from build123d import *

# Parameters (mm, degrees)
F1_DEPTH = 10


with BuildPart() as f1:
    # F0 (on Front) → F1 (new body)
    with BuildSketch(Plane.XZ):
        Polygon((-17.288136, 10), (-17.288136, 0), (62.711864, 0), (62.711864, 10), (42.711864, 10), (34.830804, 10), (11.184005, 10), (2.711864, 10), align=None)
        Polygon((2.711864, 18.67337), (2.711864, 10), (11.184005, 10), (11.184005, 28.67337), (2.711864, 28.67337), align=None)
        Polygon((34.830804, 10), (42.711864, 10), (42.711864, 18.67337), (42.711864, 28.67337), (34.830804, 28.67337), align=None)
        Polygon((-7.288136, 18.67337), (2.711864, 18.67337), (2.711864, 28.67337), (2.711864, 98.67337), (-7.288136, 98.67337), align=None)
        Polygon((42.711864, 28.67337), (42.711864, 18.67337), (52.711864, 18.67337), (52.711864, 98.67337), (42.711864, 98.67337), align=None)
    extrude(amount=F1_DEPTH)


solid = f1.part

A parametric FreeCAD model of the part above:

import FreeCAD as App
import Part
import Sketcher
from FreeCAD import Vector
Q = App.Units.Quantity


def add_polygon(sketch, points):
    """Adds a closed chain of lines whose ends are joined by coincident constraints."""
    first, n = sketch.GeometryCount, len(points)
    for a, b in zip(points, points[1:] + points[:1]):
        sketch.addGeometry(Part.LineSegment(App.Vector(*a, 0), App.Vector(*b, 0)), False)
    for i in range(n):
        sketch.addConstraint(Sketcher.Constraint("Coincident", first + i, 2, first + (i + 1) % n, 1))

doc = App.newDocument("Part")
body = doc.addObject("PartDesign::Body", "Body")

# Sketch on XZ plane
sketch1 = body.newObject("Sketcher::SketchObject", "Sketch")
sketch1.AttachmentSupport = (doc.getObject("XZ_Plane"), [""])
sketch1.MapMode = "FlatFace"
add_polygon(sketch1, [(-17, 10), (-17, 0), (63, 0), (63, 10), (43, 10), (43, 19), (53, 19), (53, 99), (43, 99), (43, 29), (35, 29), (35, 10), (11, 10), (11, 29), (3, 29), (3, 99), (-7, 99), (-7, 19), (3, 19), (3, 10)])  # lines 0-19
sketch1.addConstraint([
    Sketcher.Constraint("Vertical", 0),
    Sketcher.Constraint("Horizontal", 1),
    Sketcher.Constraint("Vertical", 2),
    Sketcher.Constraint("Horizontal", 3),
    Sketcher.Constraint("Vertical", 4),
    Sketcher.Constraint("Horizontal", 5),
    Sketcher.Constraint("Vertical", 6),
    Sketcher.Constraint("Horizontal", 7),
    Sketcher.Constraint("Vertical", 8),
    Sketcher.Constraint("Horizontal", 9),
    Sketcher.Constraint("Vertical", 10),
    Sketcher.Constraint("Horizontal", 11),
    Sketcher.Constraint("Vertical", 12),
    Sketcher.Constraint("Horizontal", 13),
    Sketcher.Constraint("Vertical", 14),
    Sketcher.Constraint("Horizontal", 15),
    Sketcher.Constraint("Vertical", 16),
    Sketcher.Constraint("Horizontal", 17),
    Sketcher.Constraint("Vertical", 18),
    Sketcher.Constraint("Horizontal", 19),
    Sketcher.Constraint("PointOnObject", 0, 2, -1),
    Sketcher.Constraint("Horizontal", 3, 2, 10, 2),
    Sketcher.Constraint("Horizontal", 9, 2, 12, 2),
    Sketcher.Constraint("Horizontal", 7, 2, 14, 2),
    Sketcher.Constraint("Horizontal", 5, 2, 16, 2),
    Sketcher.Constraint("Horizontal", 11, 2, 18, 2),
    Sketcher.Constraint("Vertical", 4, 2, 7, 2),
    Sketcher.Constraint("Vertical", 14, 2, 17, 2),
    Sketcher.Constraint("Equal", 7, 15),
    Sketcher.Constraint("Equal", 3, 19),
    Sketcher.Constraint("Equal", 17, 0),
    Sketcher.Constraint("Equal", 1, 6),
    Sketcher.Constraint("DistanceX", 1, 1, 1, 2, Q("80 mm")),
    Sketcher.Constraint("DistanceX", 3, 2, 3, 1, Q("20 mm")),
    Sketcher.Constraint("DistanceX", 5, 1, 5, 2, Q("10 mm")),
    Sketcher.Constraint("DistanceY", 8, 2, 8, 1, Q("70 mm")),
    Sketcher.Constraint("DistanceX", 11, 2, 11, 1, Q("23.646799 mm")),
    Sketcher.Constraint("DistanceX", 9, 2, 9, 1, Q("7.88106 mm")),
    Sketcher.Constraint("DistanceY", 4, 1, 4, 2, Q("8.67337 mm")),
    Sketcher.Constraint("DistanceX", 0, 2, -1, 1, Q("17.288136 mm")),
])
pad1 = body.newObject("PartDesign::Pad", "Pad")
pad1.Profile = sketch1
pad1.Length = 10

doc.recompute()
